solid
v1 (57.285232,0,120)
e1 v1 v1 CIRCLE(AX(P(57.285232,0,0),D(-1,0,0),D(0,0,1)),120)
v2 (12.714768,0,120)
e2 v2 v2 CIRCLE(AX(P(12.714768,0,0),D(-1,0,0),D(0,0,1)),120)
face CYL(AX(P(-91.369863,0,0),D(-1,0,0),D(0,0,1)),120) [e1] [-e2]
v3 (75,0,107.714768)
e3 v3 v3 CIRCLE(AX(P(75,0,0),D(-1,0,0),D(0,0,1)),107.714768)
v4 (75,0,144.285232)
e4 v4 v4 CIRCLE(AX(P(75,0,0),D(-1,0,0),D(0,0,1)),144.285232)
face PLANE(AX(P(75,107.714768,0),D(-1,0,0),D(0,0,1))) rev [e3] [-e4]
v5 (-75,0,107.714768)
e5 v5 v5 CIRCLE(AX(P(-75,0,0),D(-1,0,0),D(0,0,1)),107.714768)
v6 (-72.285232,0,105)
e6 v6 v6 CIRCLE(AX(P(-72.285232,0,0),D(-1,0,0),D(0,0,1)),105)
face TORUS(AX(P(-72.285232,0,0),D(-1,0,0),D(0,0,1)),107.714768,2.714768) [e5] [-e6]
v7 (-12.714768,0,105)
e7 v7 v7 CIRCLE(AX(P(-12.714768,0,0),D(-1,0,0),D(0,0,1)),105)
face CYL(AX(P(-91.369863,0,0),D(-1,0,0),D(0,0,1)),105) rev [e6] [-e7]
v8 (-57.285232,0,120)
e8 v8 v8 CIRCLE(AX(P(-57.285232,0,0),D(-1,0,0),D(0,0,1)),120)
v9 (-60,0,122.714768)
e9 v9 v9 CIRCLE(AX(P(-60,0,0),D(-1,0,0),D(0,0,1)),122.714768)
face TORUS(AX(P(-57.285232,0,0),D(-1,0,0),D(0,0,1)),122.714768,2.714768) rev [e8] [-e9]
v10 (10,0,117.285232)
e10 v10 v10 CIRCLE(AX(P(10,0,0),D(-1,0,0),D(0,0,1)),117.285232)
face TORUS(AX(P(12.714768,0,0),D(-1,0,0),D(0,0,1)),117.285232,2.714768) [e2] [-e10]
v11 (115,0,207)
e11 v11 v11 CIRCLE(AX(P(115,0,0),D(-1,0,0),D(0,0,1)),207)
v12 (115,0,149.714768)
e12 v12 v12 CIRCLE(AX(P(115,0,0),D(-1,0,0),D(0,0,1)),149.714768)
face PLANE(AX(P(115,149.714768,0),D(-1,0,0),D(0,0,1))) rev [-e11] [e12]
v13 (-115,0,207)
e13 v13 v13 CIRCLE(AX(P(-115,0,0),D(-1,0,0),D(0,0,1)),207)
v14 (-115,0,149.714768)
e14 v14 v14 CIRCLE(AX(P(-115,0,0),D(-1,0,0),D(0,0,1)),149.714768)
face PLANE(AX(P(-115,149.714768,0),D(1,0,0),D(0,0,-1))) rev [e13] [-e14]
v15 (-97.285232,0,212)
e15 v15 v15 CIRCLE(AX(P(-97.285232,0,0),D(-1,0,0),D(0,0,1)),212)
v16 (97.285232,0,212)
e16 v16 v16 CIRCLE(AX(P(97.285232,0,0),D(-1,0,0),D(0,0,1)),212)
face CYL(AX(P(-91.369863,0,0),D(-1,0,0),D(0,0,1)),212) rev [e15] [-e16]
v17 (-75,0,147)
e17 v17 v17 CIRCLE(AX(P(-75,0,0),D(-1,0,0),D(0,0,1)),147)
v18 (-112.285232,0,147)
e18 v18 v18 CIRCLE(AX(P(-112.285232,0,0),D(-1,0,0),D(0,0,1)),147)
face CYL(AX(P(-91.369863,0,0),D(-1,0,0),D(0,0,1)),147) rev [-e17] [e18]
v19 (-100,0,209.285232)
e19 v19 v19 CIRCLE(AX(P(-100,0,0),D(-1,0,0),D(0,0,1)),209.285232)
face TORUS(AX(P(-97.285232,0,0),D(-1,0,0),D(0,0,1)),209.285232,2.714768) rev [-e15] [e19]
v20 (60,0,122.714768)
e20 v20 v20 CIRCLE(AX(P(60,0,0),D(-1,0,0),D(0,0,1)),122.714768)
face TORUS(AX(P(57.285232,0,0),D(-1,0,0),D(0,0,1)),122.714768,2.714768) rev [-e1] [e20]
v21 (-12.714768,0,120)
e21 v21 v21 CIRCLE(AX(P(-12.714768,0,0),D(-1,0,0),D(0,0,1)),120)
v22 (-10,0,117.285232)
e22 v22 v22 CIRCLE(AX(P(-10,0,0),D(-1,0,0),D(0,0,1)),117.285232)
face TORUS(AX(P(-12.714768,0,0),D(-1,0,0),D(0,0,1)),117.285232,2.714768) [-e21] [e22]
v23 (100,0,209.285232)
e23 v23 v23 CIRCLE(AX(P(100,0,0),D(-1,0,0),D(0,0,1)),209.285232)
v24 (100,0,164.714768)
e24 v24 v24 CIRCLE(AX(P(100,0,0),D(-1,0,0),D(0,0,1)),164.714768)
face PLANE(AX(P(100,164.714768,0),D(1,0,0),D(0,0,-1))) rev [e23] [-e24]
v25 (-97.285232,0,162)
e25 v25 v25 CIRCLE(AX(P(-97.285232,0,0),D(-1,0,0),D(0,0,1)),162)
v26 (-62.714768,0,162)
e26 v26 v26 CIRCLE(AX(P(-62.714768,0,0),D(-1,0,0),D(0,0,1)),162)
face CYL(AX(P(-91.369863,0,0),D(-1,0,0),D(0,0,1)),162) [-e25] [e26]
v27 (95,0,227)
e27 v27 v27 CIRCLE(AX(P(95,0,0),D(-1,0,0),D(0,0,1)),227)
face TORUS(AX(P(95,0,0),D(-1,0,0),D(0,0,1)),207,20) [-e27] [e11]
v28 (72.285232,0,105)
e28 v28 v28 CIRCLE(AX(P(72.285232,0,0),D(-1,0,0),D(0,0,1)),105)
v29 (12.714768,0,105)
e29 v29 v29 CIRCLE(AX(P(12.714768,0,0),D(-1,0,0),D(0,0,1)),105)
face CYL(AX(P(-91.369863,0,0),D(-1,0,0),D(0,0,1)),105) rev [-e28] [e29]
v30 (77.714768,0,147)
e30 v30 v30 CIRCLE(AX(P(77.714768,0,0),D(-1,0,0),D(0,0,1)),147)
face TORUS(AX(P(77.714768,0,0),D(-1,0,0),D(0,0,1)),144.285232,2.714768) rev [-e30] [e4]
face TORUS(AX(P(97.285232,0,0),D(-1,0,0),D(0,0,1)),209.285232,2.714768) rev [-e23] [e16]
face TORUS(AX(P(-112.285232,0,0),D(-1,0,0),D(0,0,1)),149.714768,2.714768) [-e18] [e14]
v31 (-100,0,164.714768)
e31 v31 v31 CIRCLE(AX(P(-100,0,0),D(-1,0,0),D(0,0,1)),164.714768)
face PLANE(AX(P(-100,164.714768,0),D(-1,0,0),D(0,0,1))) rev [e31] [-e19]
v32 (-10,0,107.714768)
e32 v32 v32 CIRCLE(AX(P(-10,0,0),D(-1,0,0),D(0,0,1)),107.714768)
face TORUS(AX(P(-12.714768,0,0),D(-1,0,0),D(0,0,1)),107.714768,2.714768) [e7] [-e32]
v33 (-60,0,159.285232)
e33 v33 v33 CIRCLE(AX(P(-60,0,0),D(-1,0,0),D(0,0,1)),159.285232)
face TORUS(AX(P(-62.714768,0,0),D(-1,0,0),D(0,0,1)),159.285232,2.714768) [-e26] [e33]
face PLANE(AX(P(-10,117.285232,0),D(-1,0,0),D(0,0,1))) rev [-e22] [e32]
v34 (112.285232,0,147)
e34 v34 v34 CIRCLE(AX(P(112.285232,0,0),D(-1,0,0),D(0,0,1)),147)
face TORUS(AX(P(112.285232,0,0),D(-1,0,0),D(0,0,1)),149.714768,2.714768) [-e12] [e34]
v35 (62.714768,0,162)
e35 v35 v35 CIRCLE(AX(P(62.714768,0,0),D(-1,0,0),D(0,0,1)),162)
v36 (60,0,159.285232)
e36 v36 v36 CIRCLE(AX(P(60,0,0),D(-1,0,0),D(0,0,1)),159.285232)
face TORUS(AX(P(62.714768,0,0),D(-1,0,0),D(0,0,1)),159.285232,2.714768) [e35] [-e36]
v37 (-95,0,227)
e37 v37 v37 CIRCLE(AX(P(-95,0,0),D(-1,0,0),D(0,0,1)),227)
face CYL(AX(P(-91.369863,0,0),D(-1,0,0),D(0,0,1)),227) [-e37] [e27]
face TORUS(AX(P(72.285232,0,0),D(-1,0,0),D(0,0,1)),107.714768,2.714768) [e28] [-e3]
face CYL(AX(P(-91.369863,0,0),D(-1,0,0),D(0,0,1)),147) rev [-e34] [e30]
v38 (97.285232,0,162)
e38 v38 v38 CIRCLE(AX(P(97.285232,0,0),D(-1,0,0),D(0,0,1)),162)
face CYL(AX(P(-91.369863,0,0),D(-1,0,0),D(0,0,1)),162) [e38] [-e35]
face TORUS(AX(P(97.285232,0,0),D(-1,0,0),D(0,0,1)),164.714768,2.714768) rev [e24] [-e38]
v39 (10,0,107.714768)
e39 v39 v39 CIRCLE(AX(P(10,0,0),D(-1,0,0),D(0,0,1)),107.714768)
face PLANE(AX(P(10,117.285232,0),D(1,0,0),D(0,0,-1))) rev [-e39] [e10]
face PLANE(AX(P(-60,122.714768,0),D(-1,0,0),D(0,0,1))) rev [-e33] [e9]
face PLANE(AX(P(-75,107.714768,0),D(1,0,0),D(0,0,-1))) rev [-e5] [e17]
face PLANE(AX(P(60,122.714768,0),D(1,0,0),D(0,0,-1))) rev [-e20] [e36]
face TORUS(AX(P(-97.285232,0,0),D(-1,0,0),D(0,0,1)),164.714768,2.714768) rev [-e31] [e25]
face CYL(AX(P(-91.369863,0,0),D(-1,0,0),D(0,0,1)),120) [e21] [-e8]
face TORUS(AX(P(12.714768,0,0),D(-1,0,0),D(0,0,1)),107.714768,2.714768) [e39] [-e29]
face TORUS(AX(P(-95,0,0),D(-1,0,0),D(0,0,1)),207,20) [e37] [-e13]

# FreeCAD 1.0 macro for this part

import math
import FreeCAD as App
import Part
import Sketcher
Q = App.Units.Quantity

doc = App.newDocument("Part")
body = doc.addObject("PartDesign::Body", "Body")

# Sketch on XY plane
sketch1 = body.newObject("Sketcher::SketchObject", "Sketch")
sketch1.AttachmentSupport = (doc.getObject("XY_Plane"), [""])
sketch1.MapMode = "FlatFace"
sketch1.addGeometry([
    Part.LineSegment(App.Vector(57.285232, 120, 0), App.Vector(12.714768, 120, 0)),  # 0
    Part.ArcOfCircle(Part.Circle(App.Vector(12.714768, 117.285232, 0), App.Vector(0, 0, 1), 2.714768), math.radians(90), math.radians(180)),  # 1
    Part.LineSegment(App.Vector(10, 117.285232, 0), App.Vector(10, 107.714768, 0)),  # 2
    Part.ArcOfCircle(Part.Circle(App.Vector(12.714768, 107.714768, 0), App.Vector(0, 0, 1), 2.714768), math.radians(180), math.radians(270)),  # 3
    Part.LineSegment(App.Vector(12.714768, 105, 0), App.Vector(72.285232, 105, 0)),  # 4
    Part.ArcOfCircle(Part.Circle(App.Vector(72.285232, 107.714768, 0), App.Vector(0, 0, 1), 2.714768), math.radians(-90), math.radians(0)),  # 5
    Part.LineSegment(App.Vector(75, 107.714768, 0), App.Vector(75, 144.285232, 0)),  # 6
    Part.ArcOfCircle(Part.Circle(App.Vector(77.714768, 144.285232, 0), App.Vector(0, 0, 1), 2.714768), math.radians(90), math.radians(180)),  # 7
    Part.LineSegment(App.Vector(77.714768, 147, 0), App.Vector(112.285232, 147, 0)),  # 8
    Part.ArcOfCircle(Part.Circle(App.Vector(112.285232, 149.714768, 0), App.Vector(0, 0, 1), 2.714768), math.radians(-90), math.radians(0)),  # 9
    Part.LineSegment(App.Vector(115, 149.714768, 0), App.Vector(115, 207, 0)),  # 10
    Part.ArcOfCircle(Part.Circle(App.Vector(95, 207, 0), App.Vector(0, 0, 1), 20), math.radians(0), math.radians(90)),  # 11
    Part.LineSegment(App.Vector(95, 227, 0), App.Vector(-95, 227, 0)),  # 12
    Part.ArcOfCircle(Part.Circle(App.Vector(-95, 207, 0), App.Vector(0, 0, 1), 20), math.radians(90), math.radians(180)),  # 13
    Part.LineSegment(App.Vector(-115, 207, 0), App.Vector(-115, 149.714768, 0)),  # 14
    Part.ArcOfCircle(Part.Circle(App.Vector(-112.285232, 149.714768, 0), App.Vector(0, 0, 1), 2.714768), math.radians(180), math.radians(270)),  # 15
    Part.LineSegment(App.Vector(-112.285232, 147, 0), App.Vector(-75, 147, 0)),  # 16
    Part.LineSegment(App.Vector(-75, 147, 0), App.Vector(-75, 107.714768, 0)),  # 17
    Part.ArcOfCircle(Part.Circle(App.Vector(-72.285232, 107.714768, 0), App.Vector(0, 0, 1), 2.714768), math.radians(180), math.radians(270)),  # 18
    Part.LineSegment(App.Vector(-72.285232, 105, 0), App.Vector(-12.714768, 105, 0)),  # 19
    Part.ArcOfCircle(Part.Circle(App.Vector(-12.714768, 107.714768, 0), App.Vector(0, 0, 1), 2.714768), math.radians(-90), math.radians(0)),  # 20
    Part.LineSegment(App.Vector(-10, 107.714768, 0), App.Vector(-10, 117.285232, 0)),  # 21
    Part.ArcOfCircle(Part.Circle(App.Vector(-12.714768, 117.285232, 0), App.Vector(0, 0, 1), 2.714768), math.radians(0), math.radians(90)),  # 22
    Part.LineSegment(App.Vector(-12.714768, 120, 0), App.Vector(-57.285232, 120, 0)),  # 23
    Part.ArcOfCircle(Part.Circle(App.Vector(-57.285232, 122.714768, 0), App.Vector(0, 0, 1), 2.714768), math.radians(180), math.radians(270)),  # 24
    Part.LineSegment(App.Vector(-60, 122.714768, 0), App.Vector(-60, 159.285232, 0)),  # 25
    Part.ArcOfCircle(Part.Circle(App.Vector(-62.714768, 159.285232, 0), App.Vector(0, 0, 1), 2.714768), math.radians(0), math.radians(90)),  # 26
    Part.LineSegment(App.Vector(-62.714768, 162, 0), App.Vector(-97.285232, 162, 0)),  # 27
    Part.ArcOfCircle(Part.Circle(App.Vector(-97.285232, 164.714768, 0), App.Vector(0, 0, 1), 2.714768), math.radians(180), math.radians(270)),  # 28
    Part.LineSegment(App.Vector(-100, 164.714768, 0), App.Vector(-100, 209.285232, 0)),  # 29
    Part.ArcOfCircle(Part.Circle(App.Vector(-97.285232, 209.285232, 0), App.Vector(0, 0, 1), 2.714768), math.radians(90), math.radians(180)),  # 30
    Part.LineSegment(App.Vector(-97.285232, 212, 0), App.Vector(97.285232, 212, 0)),  # 31
    Part.ArcOfCircle(Part.Circle(App.Vector(97.285232, 209.285232, 0), App.Vector(0, 0, 1), 2.714768), math.radians(0), math.radians(90)),  # 32
    Part.LineSegment(App.Vector(100, 209.285232, 0), App.Vector(100, 164.714768, 0)),  # 33
    Part.ArcOfCircle(Part.Circle(App.Vector(97.285232, 164.714768, 0), App.Vector(0, 0, 1), 2.714768), math.radians(-90), math.radians(0)),  # 34
    Part.LineSegment(App.Vector(97.285232, 162, 0), App.Vector(62.714768, 162, 0)),  # 35
    Part.ArcOfCircle(Part.Circle(App.Vector(62.714768, 159.285232, 0), App.Vector(0, 0, 1), 2.714768), math.radians(90), math.radians(180)),  # 36
    Part.LineSegment(App.Vector(60, 159.285232, 0), App.Vector(60, 122.714768, 0)),  # 37
    Part.ArcOfCircle(Part.Circle(App.Vector(57.285232, 122.714768, 0), App.Vector(0, 0, 1), 2.714768), math.radians(-90), math.radians(0)),  # 38
], False)
sketch1.addConstraint([
    Sketcher.Constraint("Tangent", 0, 2, 1, 1),
    Sketcher.Constraint("Tangent", 1, 2, 2, 1),
    Sketcher.Constraint("Tangent", 2, 2, 3, 1),
    Sketcher.Constraint("Tangent", 3, 2, 4, 1),
    Sketcher.Constraint("Tangent", 4, 2, 5, 1),
    Sketcher.Constraint("Tangent", 5, 2, 6, 1),
    Sketcher.Constraint("Tangent", 6, 2, 7, 2),
    Sketcher.Constraint("Tangent", 7, 1, 8, 1),
    Sketcher.Constraint("Tangent", 8, 2, 9, 1),
    Sketcher.Constraint("Tangent", 9, 2, 10, 1),
    Sketcher.Constraint("Tangent", 10, 2, 11, 1),
    Sketcher.Constraint("Tangent", 11, 2, 12, 1),
    Sketcher.Constraint("Tangent", 12, 2, 13, 1),
    Sketcher.Constraint("Tangent", 13, 2, 14, 1),
    Sketcher.Constraint("Tangent", 14, 2, 15, 1),
    Sketcher.Constraint("Tangent", 15, 2, 16, 1),
    Sketcher.Constraint("Coincident", 16, 2, 17, 1),
    Sketcher.Constraint("Tangent", 17, 2, 18, 1),
    Sketcher.Constraint("Tangent", 18, 2, 19, 1),
    Sketcher.Constraint("Tangent", 19, 2, 20, 1),
    Sketcher.Constraint("Tangent", 20, 2, 21, 1),
    Sketcher.Constraint("Tangent", 21, 2, 22, 1),
    Sketcher.Constraint("Tangent", 22, 2, 23, 1),
    Sketcher.Constraint("Tangent", 23, 2, 24, 2),
    Sketcher.Constraint("Tangent", 24, 1, 25, 1),
    Sketcher.Constraint("Tangent", 25, 2, 26, 1),
    Sketcher.Constraint("Tangent", 26, 2, 27, 1),
    Sketcher.Constraint("Tangent", 27, 2, 28, 2),
    Sketcher.Constraint("Tangent", 28, 1, 29, 1),
    Sketcher.Constraint("Tangent", 29, 2, 30, 2),
    Sketcher.Constraint("Tangent", 30, 1, 31, 1),
    Sketcher.Constraint("Tangent", 31, 2, 32, 2),
    Sketcher.Constraint("Tangent", 32, 1, 33, 1),
    Sketcher.Constraint("Tangent", 33, 2, 34, 2),
    Sketcher.Constraint("Tangent", 34, 1, 35, 1),
    Sketcher.Constraint("Tangent", 35, 2, 36, 1),
    Sketcher.Constraint("Tangent", 36, 2, 37, 1),
    Sketcher.Constraint("Tangent", 37, 2, 38, 2),
    Sketcher.Constraint("Tangent", 38, 1, 0, 1),
    Sketcher.Constraint("Horizontal", 0),
    Sketcher.Constraint("Vertical", 2),
    Sketcher.Constraint("Horizontal", 4),
    Sketcher.Constraint("Vertical", 6),
    Sketcher.Constraint("Horizontal", 8),
    Sketcher.Constraint("Vertical", 10),
    Sketcher.Constraint("Horizontal", 12),
    Sketcher.Constraint("Vertical", 14),
    Sketcher.Constraint("Horizontal", 16),
    Sketcher.Constraint("Vertical", 17),
    Sketcher.Constraint("Horizontal", 19),
    Sketcher.Constraint("Vertical", 21),
    Sketcher.Constraint("Horizontal", 23),
    Sketcher.Constraint("Vertical", 25),
    Sketcher.Constraint("Horizontal", 27),
    Sketcher.Constraint("Vertical", 29),
    Sketcher.Constraint("Horizontal", 31),
    Sketcher.Constraint("Vertical", 33),
    Sketcher.Constraint("Horizontal", 35),
    Sketcher.Constraint("Vertical", 37),
    Sketcher.Constraint("Equal", 1, 3),
    Sketcher.Constraint("Equal", 3, 5),
    Sketcher.Constraint("Equal", 5, 7),
    Sketcher.Constraint("Equal", 7, 9),
    Sketcher.Constraint("Equal", 11, 13),
    Sketcher.Constraint("Equal", 9, 15),
    Sketcher.Constraint("Equal", 15, 18),
    Sketcher.Constraint("Equal", 18, 20),
    Sketcher.Constraint("Equal", 20, 22),
    Sketcher.Constraint("Equal", 22, 24),
    Sketcher.Constraint("Equal", 24, 26),
    Sketcher.Constraint("Equal", 26, 28),
    Sketcher.Constraint("Equal", 28, 30),
    Sketcher.Constraint("Equal", 30, 32),
    Sketcher.Constraint("Equal", 32, 34),
    Sketcher.Constraint("Equal", 34, 36),
    Sketcher.Constraint("Equal", 36, 38),
    Sketcher.Constraint("Symmetric", 9, 3, 15, 3, -2),
    Sketcher.Constraint("Symmetric", 5, 3, 18, 3, -2),
    Sketcher.Constraint("Symmetric", 1, 3, 22, 3, -2),
    Sketcher.Constraint("Symmetric", 28, 3, 34, 3, -2),
    Sketcher.Constraint("Equal", 0, 23),
    Sketcher.Constraint("Equal", 8, 27),
    Sketcher.Constraint("Equal", 6, 25),
    Sketcher.Constraint("Equal", 23, 29),
    Sketcher.Constraint("Radius", 11, Q("20 mm")),
    Sketcher.Constraint("DistanceX", 12, 2, 12, 1, Q("190 mm")),
    Sketcher.Constraint("DistanceY", -1, 1, 11, 3, Q("207 mm")),
    Sketcher.Constraint("DistanceY", -1, 1, 0, 2, Q("120 mm")),
    Sketcher.Constraint("DistanceX", -1, 1, 1, 2, Q("10 mm")),
    Sketcher.Constraint("DistanceY", -1, 1, 3, 2, Q("105 mm")),
    Sketcher.Constraint("DistanceX", -1, 1, 5, 2, Q("75 mm")),
    Sketcher.Constraint("DistanceY", -1, 1, 7, 1, Q("147 mm")),
    Sketcher.Constraint("DistanceX", 24, 1, -1, 1, Q("60 mm")),
    Sketcher.Constraint("Radius", 1, Q("2.714768 mm")),
])
revolution = body.newObject("PartDesign::Revolution", "Revolution")
revolution.Profile = sketch1
revolution.ReferenceAxis = (sketch1, ["H_Axis"])
revolution.Angle = 360

doc.recompute()
